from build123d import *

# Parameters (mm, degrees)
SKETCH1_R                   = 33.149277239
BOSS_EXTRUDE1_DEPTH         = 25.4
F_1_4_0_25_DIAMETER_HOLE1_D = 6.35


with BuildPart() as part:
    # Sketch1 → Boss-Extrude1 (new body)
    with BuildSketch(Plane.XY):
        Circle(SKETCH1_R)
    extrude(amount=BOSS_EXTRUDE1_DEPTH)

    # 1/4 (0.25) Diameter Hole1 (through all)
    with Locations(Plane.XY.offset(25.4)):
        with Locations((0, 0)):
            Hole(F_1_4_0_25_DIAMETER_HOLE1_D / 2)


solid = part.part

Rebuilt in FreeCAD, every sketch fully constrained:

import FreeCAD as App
import Part
import Sketcher
from FreeCAD import Vector
Q = App.Units.Quantity

doc = App.newDocument("Part")
body = doc.addObject("PartDesign::Body", "Body")

# Sketch on XY plane
sketch1 = doc.addObject("Sketcher::SketchObject", "Sketch")
body.addObject(sketch1)
sketch1.AttachmentSupport = (doc.XY_Plane, [""])
sketch1.MapMode = "FlatFace"
sketch1.addGeometry(Part.Circle(Vector(0, 0, 0), Vector(0, 0, 1), 33), False)
sketch1.addConstraint([
    Sketcher.Constraint("Coincident", 0, 3, -1, 1),
    Sketcher.Constraint("Diameter", 0, 66.298554),
])
pad1 = doc.addObject("PartDesign::Pad", "Pad")
body.addObject(pad1)
pad1.Profile = sketch1
pad1.Length = Q("1 in")

# Sketch on XY plane
sketch2 = doc.addObject("Sketcher::SketchObject", "Sketch001")
body.addObject(sketch2)
sketch2.AttachmentSupport = (doc.XY_Plane, [""])
sketch2.MapMode = "FlatFace"
sketch2.AttachmentOffset = App.Placement(Vector(0, 0, 1 * 25.4), App.Rotation())
sketch2.addGeometry(Part.Circle(Vector(0, 0, 0), Vector(0, 0, 1), 3.2), False)
sketch2.addConstraint([
    Sketcher.Constraint("Coincident", 0, 3, -1, 1),
    Sketcher.Constraint("Diameter", 0, Q("0.25 in")),
])
doc.recompute()
hole = doc.addObject("PartDesign::Hole", "Hole")
body.addObject(hole)
hole.Profile = sketch2
hole.ThreadType = "None"
hole.Diameter = Q("0.25 in")
hole.DepthType = "ThroughAll"

doc.recompute()
